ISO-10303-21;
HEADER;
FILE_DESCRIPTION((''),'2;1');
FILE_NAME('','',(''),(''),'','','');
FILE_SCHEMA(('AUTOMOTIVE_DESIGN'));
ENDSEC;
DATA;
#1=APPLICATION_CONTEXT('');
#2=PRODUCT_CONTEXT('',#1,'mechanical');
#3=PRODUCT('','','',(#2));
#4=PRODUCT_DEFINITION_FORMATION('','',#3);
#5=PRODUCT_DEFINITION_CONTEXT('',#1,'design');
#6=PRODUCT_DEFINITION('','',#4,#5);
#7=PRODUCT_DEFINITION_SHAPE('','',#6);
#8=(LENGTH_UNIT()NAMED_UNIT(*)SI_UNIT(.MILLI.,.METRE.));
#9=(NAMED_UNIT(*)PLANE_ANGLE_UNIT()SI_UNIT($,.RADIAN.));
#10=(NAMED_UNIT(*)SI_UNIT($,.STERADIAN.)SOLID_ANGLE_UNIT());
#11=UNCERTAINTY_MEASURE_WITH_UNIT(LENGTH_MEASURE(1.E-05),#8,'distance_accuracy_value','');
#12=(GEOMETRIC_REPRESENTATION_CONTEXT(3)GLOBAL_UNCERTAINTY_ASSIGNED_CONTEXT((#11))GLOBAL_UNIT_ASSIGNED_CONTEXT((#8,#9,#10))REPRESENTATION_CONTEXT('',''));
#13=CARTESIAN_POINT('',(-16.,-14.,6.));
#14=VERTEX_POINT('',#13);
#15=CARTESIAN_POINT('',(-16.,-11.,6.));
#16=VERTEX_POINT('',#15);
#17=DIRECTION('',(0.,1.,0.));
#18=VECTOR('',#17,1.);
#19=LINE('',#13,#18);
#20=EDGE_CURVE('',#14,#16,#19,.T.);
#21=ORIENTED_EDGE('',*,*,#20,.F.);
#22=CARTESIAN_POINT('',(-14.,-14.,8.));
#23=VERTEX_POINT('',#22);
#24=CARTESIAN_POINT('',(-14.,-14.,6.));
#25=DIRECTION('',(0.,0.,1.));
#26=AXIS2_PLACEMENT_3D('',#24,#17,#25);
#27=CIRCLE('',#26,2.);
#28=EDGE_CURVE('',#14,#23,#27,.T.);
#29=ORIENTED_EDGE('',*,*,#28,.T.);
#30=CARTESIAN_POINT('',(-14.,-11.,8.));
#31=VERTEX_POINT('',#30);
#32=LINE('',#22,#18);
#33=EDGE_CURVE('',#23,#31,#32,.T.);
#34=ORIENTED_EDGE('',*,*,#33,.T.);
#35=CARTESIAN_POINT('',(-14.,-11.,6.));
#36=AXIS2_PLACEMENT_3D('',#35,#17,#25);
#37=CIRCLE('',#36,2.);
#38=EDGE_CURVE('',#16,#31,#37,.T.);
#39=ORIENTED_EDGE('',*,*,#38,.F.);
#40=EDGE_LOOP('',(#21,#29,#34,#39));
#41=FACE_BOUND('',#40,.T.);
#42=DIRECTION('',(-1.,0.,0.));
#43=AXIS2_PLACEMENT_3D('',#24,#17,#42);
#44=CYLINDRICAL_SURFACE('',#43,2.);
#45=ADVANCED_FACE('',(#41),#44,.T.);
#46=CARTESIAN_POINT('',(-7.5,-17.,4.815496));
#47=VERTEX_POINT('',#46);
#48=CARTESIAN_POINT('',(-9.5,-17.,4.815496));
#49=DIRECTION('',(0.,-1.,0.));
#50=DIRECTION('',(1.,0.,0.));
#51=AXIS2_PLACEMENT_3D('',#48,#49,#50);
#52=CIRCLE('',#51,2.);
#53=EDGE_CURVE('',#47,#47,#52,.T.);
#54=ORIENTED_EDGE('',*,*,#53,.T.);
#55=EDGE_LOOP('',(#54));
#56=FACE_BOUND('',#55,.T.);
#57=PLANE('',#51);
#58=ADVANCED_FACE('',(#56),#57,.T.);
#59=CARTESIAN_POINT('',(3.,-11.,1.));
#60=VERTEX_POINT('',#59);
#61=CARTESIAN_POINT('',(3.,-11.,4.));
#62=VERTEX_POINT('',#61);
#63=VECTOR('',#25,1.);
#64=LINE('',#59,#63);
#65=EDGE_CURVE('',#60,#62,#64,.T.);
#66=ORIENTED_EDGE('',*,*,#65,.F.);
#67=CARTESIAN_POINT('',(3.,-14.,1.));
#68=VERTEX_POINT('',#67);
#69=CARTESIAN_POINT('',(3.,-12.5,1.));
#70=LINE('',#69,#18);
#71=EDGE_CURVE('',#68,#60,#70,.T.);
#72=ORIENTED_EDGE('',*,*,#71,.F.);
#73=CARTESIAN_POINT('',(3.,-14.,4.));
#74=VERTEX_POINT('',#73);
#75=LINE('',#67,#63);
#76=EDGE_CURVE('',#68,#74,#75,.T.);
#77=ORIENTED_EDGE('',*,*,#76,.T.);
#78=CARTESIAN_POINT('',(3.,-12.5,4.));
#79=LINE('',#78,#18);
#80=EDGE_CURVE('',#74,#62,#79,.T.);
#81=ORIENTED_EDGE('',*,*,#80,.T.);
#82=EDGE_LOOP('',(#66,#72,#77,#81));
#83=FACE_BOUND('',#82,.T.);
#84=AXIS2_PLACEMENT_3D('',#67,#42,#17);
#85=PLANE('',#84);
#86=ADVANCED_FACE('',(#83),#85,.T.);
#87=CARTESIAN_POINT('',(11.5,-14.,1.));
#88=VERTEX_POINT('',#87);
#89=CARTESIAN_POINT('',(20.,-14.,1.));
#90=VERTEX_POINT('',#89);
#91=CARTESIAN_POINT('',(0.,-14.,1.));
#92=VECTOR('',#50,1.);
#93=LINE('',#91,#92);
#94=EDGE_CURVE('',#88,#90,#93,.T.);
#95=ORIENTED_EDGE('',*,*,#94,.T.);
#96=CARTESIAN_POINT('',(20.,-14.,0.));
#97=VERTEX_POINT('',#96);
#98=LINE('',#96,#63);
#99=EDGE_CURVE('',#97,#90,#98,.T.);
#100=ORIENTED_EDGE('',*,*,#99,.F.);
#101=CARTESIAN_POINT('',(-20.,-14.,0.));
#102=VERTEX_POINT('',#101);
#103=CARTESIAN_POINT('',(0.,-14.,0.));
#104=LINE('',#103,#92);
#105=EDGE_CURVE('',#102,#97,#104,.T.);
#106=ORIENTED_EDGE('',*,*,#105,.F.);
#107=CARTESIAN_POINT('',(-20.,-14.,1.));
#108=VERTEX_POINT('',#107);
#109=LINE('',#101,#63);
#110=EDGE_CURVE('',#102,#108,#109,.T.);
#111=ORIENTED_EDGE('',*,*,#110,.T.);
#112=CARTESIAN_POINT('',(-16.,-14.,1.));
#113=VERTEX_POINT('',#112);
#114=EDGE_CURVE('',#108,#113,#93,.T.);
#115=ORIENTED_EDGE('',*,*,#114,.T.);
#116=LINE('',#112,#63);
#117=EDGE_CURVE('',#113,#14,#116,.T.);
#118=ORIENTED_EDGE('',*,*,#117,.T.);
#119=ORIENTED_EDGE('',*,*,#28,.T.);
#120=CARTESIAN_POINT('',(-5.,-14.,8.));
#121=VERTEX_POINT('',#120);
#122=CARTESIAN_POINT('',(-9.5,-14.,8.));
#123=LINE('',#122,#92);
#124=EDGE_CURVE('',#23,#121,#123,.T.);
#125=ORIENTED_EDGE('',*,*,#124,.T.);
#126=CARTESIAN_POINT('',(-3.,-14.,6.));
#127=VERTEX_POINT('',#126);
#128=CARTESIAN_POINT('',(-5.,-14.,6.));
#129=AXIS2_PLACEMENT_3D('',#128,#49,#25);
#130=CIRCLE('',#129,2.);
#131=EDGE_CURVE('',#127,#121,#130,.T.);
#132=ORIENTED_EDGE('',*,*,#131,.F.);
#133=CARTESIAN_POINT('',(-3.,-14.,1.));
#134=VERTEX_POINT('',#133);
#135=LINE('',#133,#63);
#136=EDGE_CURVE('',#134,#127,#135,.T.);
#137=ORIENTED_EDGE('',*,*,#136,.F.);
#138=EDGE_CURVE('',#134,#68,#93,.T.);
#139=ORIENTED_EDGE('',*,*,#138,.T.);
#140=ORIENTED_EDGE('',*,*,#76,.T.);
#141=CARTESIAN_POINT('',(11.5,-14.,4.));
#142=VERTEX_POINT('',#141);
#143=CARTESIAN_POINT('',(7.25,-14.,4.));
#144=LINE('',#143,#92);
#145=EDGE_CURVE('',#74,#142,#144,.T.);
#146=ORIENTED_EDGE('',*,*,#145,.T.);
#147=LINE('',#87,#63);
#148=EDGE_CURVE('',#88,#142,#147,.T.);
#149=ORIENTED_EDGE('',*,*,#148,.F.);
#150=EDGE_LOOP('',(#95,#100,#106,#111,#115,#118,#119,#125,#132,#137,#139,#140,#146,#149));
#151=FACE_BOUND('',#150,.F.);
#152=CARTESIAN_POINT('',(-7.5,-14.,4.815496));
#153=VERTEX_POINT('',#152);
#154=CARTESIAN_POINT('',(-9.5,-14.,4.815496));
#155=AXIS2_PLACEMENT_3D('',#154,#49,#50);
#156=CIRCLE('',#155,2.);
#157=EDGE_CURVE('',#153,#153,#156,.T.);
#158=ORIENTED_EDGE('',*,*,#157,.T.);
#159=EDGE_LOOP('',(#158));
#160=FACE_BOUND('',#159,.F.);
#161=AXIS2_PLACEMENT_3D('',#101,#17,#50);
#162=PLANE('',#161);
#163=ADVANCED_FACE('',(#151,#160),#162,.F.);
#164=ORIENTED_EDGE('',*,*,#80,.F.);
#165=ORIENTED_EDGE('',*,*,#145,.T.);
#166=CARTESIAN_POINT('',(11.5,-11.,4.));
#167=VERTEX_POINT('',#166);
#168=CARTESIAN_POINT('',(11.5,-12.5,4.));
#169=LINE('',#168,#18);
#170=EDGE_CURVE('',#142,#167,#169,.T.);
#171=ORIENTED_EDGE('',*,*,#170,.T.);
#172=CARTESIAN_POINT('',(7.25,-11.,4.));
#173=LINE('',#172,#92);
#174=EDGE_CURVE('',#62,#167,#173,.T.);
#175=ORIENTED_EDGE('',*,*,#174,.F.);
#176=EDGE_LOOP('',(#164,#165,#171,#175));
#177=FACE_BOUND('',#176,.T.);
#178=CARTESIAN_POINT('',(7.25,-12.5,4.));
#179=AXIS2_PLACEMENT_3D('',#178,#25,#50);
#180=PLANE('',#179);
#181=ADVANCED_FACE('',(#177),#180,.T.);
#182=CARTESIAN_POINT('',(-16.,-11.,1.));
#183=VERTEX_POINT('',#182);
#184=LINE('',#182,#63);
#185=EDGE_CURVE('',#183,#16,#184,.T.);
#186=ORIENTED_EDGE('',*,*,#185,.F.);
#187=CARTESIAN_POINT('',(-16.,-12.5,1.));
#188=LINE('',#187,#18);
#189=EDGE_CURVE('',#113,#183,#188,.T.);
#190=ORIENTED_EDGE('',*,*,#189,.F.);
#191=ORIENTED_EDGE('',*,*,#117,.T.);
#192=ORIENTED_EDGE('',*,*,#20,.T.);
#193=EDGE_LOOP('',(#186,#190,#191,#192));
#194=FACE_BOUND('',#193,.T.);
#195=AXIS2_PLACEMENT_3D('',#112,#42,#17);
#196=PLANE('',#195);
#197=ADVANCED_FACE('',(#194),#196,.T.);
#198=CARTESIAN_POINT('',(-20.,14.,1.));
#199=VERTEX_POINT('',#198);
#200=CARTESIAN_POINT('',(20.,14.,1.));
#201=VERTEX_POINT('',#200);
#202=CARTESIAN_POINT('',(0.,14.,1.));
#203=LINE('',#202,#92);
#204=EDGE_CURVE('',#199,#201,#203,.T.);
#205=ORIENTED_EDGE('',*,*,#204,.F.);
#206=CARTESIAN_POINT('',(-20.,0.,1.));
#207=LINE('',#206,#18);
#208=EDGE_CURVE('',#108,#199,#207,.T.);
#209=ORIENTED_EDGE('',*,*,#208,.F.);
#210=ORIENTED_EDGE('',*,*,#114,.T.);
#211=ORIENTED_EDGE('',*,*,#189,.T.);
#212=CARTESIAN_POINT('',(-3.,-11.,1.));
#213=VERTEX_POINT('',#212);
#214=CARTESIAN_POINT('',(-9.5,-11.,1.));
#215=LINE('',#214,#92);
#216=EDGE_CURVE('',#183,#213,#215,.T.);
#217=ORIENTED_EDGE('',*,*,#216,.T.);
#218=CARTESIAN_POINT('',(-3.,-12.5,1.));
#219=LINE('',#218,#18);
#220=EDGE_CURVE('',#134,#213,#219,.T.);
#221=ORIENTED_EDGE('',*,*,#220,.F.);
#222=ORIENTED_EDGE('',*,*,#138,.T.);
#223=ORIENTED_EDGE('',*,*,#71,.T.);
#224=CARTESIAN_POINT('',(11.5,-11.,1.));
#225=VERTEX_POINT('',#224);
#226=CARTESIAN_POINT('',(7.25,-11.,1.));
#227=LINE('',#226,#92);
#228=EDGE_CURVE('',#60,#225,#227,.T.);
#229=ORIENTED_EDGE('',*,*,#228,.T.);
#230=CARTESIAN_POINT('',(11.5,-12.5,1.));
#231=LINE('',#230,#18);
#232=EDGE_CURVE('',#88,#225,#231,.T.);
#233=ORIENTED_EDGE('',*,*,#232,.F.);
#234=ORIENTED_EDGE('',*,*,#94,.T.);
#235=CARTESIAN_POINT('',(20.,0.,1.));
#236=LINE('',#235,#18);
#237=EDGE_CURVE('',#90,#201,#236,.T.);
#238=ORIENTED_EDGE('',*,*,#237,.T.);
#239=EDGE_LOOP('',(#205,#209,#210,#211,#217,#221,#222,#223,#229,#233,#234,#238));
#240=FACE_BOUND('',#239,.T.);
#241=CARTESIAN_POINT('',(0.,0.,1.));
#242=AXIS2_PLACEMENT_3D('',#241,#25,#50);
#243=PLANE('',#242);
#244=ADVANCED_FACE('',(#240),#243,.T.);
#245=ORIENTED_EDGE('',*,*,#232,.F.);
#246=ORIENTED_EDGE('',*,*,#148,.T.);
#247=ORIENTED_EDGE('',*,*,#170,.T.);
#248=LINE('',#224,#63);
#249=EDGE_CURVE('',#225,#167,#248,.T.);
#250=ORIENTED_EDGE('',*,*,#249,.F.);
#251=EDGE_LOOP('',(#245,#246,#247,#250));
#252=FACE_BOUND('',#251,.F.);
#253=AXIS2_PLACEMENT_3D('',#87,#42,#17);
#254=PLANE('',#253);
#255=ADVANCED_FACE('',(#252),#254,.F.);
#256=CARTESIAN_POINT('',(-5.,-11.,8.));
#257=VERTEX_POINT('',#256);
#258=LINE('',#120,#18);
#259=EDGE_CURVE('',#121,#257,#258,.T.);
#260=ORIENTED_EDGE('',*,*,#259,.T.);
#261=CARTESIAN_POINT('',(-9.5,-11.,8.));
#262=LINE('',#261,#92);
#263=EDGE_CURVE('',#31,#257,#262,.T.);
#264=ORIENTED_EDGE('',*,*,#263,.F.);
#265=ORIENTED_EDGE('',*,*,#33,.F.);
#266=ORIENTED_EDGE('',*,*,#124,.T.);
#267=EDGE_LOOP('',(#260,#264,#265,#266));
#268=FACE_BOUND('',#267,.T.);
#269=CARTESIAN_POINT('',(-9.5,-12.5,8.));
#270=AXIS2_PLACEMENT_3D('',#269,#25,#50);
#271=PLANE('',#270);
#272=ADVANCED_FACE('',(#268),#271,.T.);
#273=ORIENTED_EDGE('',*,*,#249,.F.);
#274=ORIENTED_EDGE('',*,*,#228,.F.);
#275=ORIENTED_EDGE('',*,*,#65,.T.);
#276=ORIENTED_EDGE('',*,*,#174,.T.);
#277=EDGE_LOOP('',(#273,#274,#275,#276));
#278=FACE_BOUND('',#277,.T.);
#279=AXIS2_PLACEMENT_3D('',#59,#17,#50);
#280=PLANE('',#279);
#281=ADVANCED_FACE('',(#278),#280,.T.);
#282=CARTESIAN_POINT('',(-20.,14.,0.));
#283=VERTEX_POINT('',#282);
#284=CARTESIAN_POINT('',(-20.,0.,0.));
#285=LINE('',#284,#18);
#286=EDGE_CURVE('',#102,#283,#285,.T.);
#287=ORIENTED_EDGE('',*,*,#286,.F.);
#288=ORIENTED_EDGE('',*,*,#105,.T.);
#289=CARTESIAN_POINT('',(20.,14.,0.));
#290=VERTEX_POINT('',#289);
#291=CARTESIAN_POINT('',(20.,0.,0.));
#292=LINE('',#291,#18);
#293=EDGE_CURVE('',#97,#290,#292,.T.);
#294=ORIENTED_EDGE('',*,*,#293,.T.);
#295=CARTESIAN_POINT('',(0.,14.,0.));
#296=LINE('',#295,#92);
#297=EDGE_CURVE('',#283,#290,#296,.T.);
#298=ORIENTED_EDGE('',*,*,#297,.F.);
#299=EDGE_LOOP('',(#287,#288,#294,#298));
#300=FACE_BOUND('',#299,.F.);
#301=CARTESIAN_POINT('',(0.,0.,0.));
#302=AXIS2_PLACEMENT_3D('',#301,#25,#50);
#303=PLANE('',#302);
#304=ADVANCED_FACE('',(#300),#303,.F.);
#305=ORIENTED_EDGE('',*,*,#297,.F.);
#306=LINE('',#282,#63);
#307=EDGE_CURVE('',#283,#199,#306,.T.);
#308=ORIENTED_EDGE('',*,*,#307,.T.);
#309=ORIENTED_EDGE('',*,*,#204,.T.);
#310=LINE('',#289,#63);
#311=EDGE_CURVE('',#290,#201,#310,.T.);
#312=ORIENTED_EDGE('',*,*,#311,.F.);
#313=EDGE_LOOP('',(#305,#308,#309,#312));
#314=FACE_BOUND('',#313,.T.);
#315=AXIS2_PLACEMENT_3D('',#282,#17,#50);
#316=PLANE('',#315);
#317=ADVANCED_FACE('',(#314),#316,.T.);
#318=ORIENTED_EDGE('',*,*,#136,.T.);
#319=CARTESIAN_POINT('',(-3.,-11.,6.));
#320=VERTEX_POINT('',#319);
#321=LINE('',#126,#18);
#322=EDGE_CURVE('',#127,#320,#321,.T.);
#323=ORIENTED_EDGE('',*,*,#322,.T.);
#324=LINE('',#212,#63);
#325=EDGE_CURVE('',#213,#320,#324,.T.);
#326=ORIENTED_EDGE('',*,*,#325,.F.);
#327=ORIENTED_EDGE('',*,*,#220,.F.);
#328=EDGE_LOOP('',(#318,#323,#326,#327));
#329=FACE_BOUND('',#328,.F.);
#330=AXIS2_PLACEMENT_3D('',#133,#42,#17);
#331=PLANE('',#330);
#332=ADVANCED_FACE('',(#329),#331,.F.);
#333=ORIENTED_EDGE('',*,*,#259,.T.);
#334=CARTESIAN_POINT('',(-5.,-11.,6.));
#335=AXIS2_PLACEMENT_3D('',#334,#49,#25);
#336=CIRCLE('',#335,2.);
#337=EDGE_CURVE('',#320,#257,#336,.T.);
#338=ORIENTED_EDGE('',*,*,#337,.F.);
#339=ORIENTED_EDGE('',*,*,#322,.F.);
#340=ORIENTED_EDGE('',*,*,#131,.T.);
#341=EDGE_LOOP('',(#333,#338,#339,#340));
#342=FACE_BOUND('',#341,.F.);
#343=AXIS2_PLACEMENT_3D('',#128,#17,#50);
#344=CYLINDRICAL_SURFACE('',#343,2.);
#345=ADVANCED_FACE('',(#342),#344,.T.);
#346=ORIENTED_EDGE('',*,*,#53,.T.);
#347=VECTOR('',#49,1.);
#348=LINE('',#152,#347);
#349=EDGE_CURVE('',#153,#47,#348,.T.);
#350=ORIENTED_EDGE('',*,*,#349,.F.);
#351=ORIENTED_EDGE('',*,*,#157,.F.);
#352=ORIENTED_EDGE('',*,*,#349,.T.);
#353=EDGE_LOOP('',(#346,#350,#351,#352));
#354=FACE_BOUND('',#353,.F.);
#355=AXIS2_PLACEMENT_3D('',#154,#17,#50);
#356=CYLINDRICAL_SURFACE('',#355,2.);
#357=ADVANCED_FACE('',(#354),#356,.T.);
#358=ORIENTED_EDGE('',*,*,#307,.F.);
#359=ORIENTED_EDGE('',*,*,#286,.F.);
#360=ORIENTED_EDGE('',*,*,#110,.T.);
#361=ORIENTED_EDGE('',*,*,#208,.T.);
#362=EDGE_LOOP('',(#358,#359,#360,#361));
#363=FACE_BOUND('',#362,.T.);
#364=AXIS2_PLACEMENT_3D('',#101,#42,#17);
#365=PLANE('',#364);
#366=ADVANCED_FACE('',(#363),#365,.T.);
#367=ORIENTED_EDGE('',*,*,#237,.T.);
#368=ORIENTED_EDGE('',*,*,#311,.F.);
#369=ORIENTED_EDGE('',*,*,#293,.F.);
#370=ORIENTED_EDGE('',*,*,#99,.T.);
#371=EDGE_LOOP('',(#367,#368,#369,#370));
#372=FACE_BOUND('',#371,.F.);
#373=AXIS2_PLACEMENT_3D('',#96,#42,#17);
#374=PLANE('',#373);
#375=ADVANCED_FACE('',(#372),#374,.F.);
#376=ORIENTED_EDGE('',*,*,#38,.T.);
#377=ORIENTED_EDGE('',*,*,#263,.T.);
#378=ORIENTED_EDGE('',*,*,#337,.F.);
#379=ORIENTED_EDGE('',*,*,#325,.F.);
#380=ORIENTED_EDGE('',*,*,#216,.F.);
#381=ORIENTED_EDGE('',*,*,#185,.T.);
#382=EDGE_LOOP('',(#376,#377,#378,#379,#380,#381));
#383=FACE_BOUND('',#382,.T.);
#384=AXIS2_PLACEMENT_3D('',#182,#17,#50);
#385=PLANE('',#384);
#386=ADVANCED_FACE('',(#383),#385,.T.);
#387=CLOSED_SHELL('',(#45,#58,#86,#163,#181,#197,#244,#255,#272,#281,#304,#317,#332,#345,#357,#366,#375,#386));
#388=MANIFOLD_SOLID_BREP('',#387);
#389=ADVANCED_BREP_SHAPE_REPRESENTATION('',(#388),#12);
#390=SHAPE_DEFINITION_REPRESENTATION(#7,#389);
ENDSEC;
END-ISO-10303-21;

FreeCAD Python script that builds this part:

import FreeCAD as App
import Part
import Sketcher

V = App.Vector
Q = App.Units.Quantity


def edges_at(feature, points):
    """Names of the edges that pass closest to the given points."""
    edges = feature.Shape.Edges
    near = lambda p: min(range(len(edges)), key=lambda i: edges[i].distToShape(Part.Vertex(*p))[0])
    return sorted({f"Edge{near(p) + 1}" for p in points})


def add_polygon(sketch, points):
    """Adds a closed chain of lines whose ends are joined by coincident constraints."""
    first, n = sketch.GeometryCount, len(points)
    for a, b in zip(points, points[1:] + points[:1]):
        sketch.addGeometry(Part.LineSegment(App.Vector(*a, 0), App.Vector(*b, 0)), False)
    for i in range(n):
        sketch.addConstraint(Sketcher.Constraint("Coincident", first + i, 2, first + (i + 1) % n, 1))

doc = App.newDocument("Part")
params = doc.addObject("Spreadsheet::Sheet", "Params")
for row, (alias, value) in enumerate([
    ("sketch1_width", "40 mm"),
    ("sketch1_height", "28 mm"),
    ("pad1_length", "1 mm"),
    ("sketch2_width", "13 mm"),
    ("sketch2_height", "3 mm"),
    ("pad2_length", "7 mm"),
    ("fillet_radius", "2 mm"),
    ("sketch3_height", "3 mm"),
    ("sketch3_width", "8.5 mm"),
    ("pad3_length", "3 mm"),
    ("sketch4_diameter", "4 mm"),
    ("pad4_length", "3 mm"),
], start=1):
    params.set(f"A{row}", alias)
    params.set(f"B{row}", "=" + value)
    params.setAlias(f"B{row}", alias)

body = doc.addObject("PartDesign::Body", "Body")

# Sketch on XY plane
sketch1 = body.newObject("Sketcher::SketchObject", "Sketch")
sketch1.AttachmentSupport = (doc.getObject("XY_Plane"), [""])
sketch1.MapMode = "FlatFace"
add_polygon(sketch1, [(-20, 14), (-20, -14), (20, -14), (20, 14)])  # lines 0-3
sketch1.addConstraint([
    Sketcher.Constraint("Vertical", 0),
    Sketcher.Constraint("Horizontal", 1),
    Sketcher.Constraint("Vertical", 2),
    Sketcher.Constraint("Horizontal", 3),
    Sketcher.Constraint("Symmetric", 0, 2, 2, 2, -1, 1),
    Sketcher.Constraint("DistanceX", 1, 1, 1, 2, Q("40 mm")),
    Sketcher.Constraint("DistanceY", 0, 2, 0, 1, Q("28 mm")),
])
sketch1.setExpression("Constraints[9]", "Params.sketch1_width")
sketch1.setExpression("Constraints[10]", "Params.sketch1_height")
pad1 = body.newObject("PartDesign::Pad", "Pad")
pad1.Profile = sketch1
pad1.setExpression("Length", "Params.pad1_length")

# Sketch on XY plane
sketch2 = body.newObject("Sketcher::SketchObject", "Sketch001")
sketch2.AttachmentSupport = (doc.getObject("XY_Plane"), [""])
sketch2.MapMode = "FlatFace"
sketch2.AttachmentOffset = App.Placement(V(0, 0, 1), App.Rotation())
add_polygon(sketch2, [(-16, -11), (-16, -14), (-3, -14), (-3, -11)])  # lines 0-3
sketch2.addConstraint([
    Sketcher.Constraint("Vertical", 0),
    Sketcher.Constraint("Horizontal", 1),
    Sketcher.Constraint("Vertical", 2),
    Sketcher.Constraint("Horizontal", 3),
    Sketcher.Constraint("DistanceX", 1, 1, 1, 2, Q("13 mm")),
    Sketcher.Constraint("DistanceY", 0, 2, 0, 1, Q("3 mm")),
    Sketcher.Constraint("DistanceX", 0, 2, -1, 1, Q("16 mm")),
    Sketcher.Constraint("DistanceY", 0, 2, -1, 1, Q("14 mm")),
])
sketch2.setExpression("Constraints[8]", "Params.sketch2_width")
sketch2.setExpression("Constraints[9]", "Params.sketch2_height")
pad2 = body.newObject("PartDesign::Pad", "Pad001")
pad2.Profile = sketch2
pad2.setExpression("Length", "Params.pad2_length")
doc.recompute()

fillet = body.newObject("PartDesign::Fillet", "Fillet")
fillet.Base = (pad2, edges_at(pad2, [(-16, -12.5, 8), (-3, -12.5, 8)]))
fillet.setExpression("Radius", "Params.fillet_radius")

# Sketch on XY plane
sketch3 = body.newObject("Sketcher::SketchObject", "Sketch002")
sketch3.AttachmentSupport = (doc.getObject("XY_Plane"), [""])
sketch3.MapMode = "FlatFace"
sketch3.AttachmentOffset = App.Placement(V(0, 0, 1), App.Rotation())
add_polygon(sketch3, [(3, -11), (3, -14), (11.5, -14), (11.5, -11)])  # lines 0-3
sketch3.addConstraint([
    Sketcher.Constraint("Vertical", 0),
    Sketcher.Constraint("Horizontal", 1),
    Sketcher.Constraint("Vertical", 2),
    Sketcher.Constraint("Horizontal", 3),
    Sketcher.Constraint("DistanceY", 0, 2, 0, 1, Q("3 mm")),
    Sketcher.Constraint("DistanceX", 1, 1, 1, 2, Q("8.5 mm")),
    Sketcher.Constraint("DistanceX", -1, 1, 0, 2, Q("3 mm")),
    Sketcher.Constraint("DistanceY", 0, 2, -1, 1, Q("14 mm")),
])
sketch3.setExpression("Constraints[8]", "Params.sketch3_height")
sketch3.setExpression("Constraints[9]", "Params.sketch3_width")
pad3 = body.newObject("PartDesign::Pad", "Pad002")
pad3.Profile = sketch3
pad3.setExpression("Length", "Params.pad3_length")

# Sketch on XZ plane
sketch4 = body.newObject("Sketcher::SketchObject", "Sketch003")
sketch4.AttachmentSupport = (doc.getObject("XZ_Plane"), [""])
sketch4.MapMode = "FlatFace"
sketch4.AttachmentOffset = App.Placement(V(0, 0, 14), App.Rotation())
sketch4.addGeometry(Part.Circle(V(-9.5, 4.8, 0), V(0, 0, 1), 2), False)
sketch4.addConstraint([
    Sketcher.Constraint("Diameter", 0, Q("4 mm")),
    Sketcher.Constraint("DistanceX", 0, 3, -1, 1, Q("9.5 mm")),
    Sketcher.Constraint("DistanceY", -1, 1, 0, 3, Q("4.815496 mm")),
])
sketch4.setExpression("Constraints[0]", "Params.sketch4_diameter")
pad4 = body.newObject("PartDesign::Pad", "Pad003")
pad4.Profile = sketch4
pad4.setExpression("Length", "Params.pad4_length")

doc.recompute()
